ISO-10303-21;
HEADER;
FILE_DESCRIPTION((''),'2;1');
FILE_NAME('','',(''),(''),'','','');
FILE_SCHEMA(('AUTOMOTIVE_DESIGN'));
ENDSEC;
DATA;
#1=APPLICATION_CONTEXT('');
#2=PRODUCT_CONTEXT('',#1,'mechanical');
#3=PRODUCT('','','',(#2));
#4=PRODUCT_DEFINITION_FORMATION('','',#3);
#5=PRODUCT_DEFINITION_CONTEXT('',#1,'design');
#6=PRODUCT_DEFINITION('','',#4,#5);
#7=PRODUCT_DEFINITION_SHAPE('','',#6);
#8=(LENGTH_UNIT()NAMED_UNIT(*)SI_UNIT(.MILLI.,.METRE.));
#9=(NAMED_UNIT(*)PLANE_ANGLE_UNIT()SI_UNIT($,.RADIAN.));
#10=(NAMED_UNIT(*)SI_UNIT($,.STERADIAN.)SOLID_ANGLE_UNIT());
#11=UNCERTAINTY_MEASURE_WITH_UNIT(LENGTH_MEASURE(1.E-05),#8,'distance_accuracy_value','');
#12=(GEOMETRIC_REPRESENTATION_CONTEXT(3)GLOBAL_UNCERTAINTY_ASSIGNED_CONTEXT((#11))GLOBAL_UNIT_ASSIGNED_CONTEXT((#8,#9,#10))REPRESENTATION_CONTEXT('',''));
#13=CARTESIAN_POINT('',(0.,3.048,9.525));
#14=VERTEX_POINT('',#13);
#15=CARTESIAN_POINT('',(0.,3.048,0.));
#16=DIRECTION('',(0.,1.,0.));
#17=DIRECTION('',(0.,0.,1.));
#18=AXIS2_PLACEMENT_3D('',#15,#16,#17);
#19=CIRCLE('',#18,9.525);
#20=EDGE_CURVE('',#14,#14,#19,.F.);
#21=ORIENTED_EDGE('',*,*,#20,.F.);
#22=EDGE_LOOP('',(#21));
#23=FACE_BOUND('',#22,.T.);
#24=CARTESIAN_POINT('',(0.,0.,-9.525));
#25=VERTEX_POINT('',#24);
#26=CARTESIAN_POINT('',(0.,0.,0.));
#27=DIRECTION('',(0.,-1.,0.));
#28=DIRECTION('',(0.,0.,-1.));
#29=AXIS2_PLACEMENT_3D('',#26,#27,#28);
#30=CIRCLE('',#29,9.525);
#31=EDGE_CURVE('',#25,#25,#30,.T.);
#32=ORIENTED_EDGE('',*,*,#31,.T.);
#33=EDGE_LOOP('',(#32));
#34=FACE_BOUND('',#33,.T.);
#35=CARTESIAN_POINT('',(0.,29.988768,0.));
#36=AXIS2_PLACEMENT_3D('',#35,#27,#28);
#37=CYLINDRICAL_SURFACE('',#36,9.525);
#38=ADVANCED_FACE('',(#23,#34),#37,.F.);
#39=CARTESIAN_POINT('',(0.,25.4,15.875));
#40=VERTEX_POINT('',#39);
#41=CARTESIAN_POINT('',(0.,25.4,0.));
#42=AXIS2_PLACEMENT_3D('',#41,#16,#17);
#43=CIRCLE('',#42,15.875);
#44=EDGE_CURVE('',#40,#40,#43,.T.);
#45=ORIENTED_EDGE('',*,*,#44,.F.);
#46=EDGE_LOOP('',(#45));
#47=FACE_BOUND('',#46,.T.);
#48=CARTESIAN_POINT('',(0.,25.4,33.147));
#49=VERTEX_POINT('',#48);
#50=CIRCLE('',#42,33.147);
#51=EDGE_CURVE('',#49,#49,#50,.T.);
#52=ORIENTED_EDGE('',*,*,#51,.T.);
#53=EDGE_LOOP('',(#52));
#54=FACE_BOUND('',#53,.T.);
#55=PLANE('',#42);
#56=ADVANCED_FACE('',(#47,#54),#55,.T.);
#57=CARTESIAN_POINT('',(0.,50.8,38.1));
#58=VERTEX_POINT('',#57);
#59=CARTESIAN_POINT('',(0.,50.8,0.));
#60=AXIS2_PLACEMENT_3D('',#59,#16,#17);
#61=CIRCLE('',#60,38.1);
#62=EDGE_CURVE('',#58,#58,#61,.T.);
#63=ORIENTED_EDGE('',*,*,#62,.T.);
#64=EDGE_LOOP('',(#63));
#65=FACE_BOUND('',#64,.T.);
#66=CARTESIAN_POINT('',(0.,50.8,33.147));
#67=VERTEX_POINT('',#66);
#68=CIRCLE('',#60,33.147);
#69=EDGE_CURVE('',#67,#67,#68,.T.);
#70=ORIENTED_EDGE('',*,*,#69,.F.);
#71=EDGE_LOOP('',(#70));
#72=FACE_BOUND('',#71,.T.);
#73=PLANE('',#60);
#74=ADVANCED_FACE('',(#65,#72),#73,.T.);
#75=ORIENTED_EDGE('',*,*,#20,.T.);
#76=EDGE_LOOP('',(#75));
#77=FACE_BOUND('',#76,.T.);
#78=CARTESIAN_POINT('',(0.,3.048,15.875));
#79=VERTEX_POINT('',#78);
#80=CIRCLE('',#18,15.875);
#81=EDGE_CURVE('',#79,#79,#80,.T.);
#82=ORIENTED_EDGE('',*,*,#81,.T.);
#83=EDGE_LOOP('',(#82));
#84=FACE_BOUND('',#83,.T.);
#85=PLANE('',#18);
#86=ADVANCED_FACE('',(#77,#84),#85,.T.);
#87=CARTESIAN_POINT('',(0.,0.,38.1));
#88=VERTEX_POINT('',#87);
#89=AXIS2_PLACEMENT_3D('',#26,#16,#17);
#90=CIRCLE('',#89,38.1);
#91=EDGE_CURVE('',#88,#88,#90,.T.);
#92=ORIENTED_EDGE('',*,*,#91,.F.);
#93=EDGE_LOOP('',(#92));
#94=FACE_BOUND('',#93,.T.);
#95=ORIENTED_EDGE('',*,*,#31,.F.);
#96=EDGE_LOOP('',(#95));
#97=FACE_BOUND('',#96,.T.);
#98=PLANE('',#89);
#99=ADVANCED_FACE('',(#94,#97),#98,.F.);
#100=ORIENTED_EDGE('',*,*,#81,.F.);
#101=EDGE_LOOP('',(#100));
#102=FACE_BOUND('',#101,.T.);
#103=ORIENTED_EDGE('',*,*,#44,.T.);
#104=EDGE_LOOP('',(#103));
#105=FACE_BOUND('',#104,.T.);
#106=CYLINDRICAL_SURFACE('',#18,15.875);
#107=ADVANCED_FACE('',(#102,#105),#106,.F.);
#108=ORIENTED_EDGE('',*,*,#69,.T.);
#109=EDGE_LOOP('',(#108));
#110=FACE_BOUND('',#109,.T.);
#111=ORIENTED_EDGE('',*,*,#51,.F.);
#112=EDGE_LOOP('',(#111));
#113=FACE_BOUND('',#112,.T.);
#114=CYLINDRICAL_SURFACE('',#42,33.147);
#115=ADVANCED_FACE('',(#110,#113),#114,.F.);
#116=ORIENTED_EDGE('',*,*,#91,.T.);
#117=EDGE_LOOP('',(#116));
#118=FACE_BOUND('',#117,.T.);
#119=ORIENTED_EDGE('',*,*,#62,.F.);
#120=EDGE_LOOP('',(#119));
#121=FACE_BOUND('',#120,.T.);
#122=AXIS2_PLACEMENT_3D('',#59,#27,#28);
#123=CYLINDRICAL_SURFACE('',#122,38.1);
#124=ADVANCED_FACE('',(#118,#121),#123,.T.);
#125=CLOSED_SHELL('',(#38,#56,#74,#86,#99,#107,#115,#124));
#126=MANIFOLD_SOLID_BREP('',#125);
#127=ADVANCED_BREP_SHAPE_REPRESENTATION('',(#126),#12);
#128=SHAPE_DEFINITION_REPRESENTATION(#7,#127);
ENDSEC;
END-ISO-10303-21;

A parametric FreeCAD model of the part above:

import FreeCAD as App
import Part
import Sketcher
from FreeCAD import Vector
Q = App.Units.Quantity

doc = App.newDocument("Part")
body = doc.addObject("PartDesign::Body", "Body")

# Sketch on XZ plane
sketch1 = body.newObject("Sketcher::SketchObject", "Sketch")
sketch1.AttachmentSupport = (doc.getObject("XZ_Plane"), [""])
sketch1.MapMode = "FlatFace"
sketch1.addGeometry(Part.Circle(Vector(0, 0, 0), Vector(0, 0, 1), 38), False)
sketch1.addConstraint(Sketcher.Constraint("Coincident", 0, 3, -1, 1))
sketch1.addConstraint(Sketcher.Constraint("Diameter", 0, Q("3 in")))
pad1 = body.newObject("PartDesign::Pad", "Pad")
pad1.Profile = sketch1
pad1.Length = Q("2 in")
pad1.Reversed = True

# Sketch on XZ plane
sketch2 = body.newObject("Sketcher::SketchObject", "Sketch001")
sketch2.AttachmentSupport = (doc.getObject("XZ_Plane"), [""])
sketch2.MapMode = "FlatFace"
sketch2.AttachmentOffset = App.Placement(Vector(0, 0, -2 * 25.4), App.Rotation())
sketch2.addGeometry(Part.Circle(Vector(0, 0, 0), Vector(0, 0, 1), 16), False)
sketch2.addConstraint(Sketcher.Constraint("Coincident", 0, 3, -1, 1))
sketch2.addConstraint(Sketcher.Constraint("Diameter", 0, Q("1.25 in")))
pocket1 = body.newObject("PartDesign::Pocket", "Pocket")
pocket1.Profile = sketch2
pocket1.Length = Q("1.88 in")
pocket1.Reversed = True

# Sketch on XZ plane
sketch3 = body.newObject("Sketcher::SketchObject", "Sketch002")
sketch3.AttachmentSupport = (doc.getObject("XZ_Plane"), [""])
sketch3.MapMode = "FlatFace"
sketch3.AttachmentOffset = App.Placement(Vector(0, 0, -2 * 25.4), App.Rotation())
sketch3.addGeometry(Part.Circle(Vector(0, 0, 0), Vector(0, 0, 1), 33), False)
sketch3.addGeometry(Part.Circle(Vector(0, 0, 0), Vector(0, 0, 1), 16), False)
sketch3.addConstraint(Sketcher.Constraint("Coincident", 0, 3, -1, 1))
sketch3.addConstraint(Sketcher.Constraint("Coincident", 1, 3, -1, 1))
sketch3.addConstraint(Sketcher.Constraint("Diameter", 0, Q("2.61 in")))
sketch3.addConstraint(Sketcher.Constraint("Diameter", 1, Q("1.25 in")))
pocket2 = body.newObject("PartDesign::Pocket", "Pocket001")
pocket2.Profile = sketch3
pocket2.Length = Q("1 in")
pocket2.Reversed = True

# Sketch on XZ plane
sketch4 = body.newObject("Sketcher::SketchObject", "Sketch003")
sketch4.AttachmentSupport = (doc.getObject("XZ_Plane"), [""])
sketch4.MapMode = "FlatFace"
sketch4.addGeometry(Part.Circle(Vector(0, 0, 0), Vector(0, 0, 1), 10), False)
sketch4.addConstraint(Sketcher.Constraint("Coincident", 0, 3, -1, 1))
sketch4.addConstraint(Sketcher.Constraint("Diameter", 0, Q("0.75 in")))
pocket3 = body.newObject("PartDesign::Pocket", "Pocket002")
pocket3.Profile = sketch4
pocket3.Length = Q("0.12 in")

doc.recompute()
